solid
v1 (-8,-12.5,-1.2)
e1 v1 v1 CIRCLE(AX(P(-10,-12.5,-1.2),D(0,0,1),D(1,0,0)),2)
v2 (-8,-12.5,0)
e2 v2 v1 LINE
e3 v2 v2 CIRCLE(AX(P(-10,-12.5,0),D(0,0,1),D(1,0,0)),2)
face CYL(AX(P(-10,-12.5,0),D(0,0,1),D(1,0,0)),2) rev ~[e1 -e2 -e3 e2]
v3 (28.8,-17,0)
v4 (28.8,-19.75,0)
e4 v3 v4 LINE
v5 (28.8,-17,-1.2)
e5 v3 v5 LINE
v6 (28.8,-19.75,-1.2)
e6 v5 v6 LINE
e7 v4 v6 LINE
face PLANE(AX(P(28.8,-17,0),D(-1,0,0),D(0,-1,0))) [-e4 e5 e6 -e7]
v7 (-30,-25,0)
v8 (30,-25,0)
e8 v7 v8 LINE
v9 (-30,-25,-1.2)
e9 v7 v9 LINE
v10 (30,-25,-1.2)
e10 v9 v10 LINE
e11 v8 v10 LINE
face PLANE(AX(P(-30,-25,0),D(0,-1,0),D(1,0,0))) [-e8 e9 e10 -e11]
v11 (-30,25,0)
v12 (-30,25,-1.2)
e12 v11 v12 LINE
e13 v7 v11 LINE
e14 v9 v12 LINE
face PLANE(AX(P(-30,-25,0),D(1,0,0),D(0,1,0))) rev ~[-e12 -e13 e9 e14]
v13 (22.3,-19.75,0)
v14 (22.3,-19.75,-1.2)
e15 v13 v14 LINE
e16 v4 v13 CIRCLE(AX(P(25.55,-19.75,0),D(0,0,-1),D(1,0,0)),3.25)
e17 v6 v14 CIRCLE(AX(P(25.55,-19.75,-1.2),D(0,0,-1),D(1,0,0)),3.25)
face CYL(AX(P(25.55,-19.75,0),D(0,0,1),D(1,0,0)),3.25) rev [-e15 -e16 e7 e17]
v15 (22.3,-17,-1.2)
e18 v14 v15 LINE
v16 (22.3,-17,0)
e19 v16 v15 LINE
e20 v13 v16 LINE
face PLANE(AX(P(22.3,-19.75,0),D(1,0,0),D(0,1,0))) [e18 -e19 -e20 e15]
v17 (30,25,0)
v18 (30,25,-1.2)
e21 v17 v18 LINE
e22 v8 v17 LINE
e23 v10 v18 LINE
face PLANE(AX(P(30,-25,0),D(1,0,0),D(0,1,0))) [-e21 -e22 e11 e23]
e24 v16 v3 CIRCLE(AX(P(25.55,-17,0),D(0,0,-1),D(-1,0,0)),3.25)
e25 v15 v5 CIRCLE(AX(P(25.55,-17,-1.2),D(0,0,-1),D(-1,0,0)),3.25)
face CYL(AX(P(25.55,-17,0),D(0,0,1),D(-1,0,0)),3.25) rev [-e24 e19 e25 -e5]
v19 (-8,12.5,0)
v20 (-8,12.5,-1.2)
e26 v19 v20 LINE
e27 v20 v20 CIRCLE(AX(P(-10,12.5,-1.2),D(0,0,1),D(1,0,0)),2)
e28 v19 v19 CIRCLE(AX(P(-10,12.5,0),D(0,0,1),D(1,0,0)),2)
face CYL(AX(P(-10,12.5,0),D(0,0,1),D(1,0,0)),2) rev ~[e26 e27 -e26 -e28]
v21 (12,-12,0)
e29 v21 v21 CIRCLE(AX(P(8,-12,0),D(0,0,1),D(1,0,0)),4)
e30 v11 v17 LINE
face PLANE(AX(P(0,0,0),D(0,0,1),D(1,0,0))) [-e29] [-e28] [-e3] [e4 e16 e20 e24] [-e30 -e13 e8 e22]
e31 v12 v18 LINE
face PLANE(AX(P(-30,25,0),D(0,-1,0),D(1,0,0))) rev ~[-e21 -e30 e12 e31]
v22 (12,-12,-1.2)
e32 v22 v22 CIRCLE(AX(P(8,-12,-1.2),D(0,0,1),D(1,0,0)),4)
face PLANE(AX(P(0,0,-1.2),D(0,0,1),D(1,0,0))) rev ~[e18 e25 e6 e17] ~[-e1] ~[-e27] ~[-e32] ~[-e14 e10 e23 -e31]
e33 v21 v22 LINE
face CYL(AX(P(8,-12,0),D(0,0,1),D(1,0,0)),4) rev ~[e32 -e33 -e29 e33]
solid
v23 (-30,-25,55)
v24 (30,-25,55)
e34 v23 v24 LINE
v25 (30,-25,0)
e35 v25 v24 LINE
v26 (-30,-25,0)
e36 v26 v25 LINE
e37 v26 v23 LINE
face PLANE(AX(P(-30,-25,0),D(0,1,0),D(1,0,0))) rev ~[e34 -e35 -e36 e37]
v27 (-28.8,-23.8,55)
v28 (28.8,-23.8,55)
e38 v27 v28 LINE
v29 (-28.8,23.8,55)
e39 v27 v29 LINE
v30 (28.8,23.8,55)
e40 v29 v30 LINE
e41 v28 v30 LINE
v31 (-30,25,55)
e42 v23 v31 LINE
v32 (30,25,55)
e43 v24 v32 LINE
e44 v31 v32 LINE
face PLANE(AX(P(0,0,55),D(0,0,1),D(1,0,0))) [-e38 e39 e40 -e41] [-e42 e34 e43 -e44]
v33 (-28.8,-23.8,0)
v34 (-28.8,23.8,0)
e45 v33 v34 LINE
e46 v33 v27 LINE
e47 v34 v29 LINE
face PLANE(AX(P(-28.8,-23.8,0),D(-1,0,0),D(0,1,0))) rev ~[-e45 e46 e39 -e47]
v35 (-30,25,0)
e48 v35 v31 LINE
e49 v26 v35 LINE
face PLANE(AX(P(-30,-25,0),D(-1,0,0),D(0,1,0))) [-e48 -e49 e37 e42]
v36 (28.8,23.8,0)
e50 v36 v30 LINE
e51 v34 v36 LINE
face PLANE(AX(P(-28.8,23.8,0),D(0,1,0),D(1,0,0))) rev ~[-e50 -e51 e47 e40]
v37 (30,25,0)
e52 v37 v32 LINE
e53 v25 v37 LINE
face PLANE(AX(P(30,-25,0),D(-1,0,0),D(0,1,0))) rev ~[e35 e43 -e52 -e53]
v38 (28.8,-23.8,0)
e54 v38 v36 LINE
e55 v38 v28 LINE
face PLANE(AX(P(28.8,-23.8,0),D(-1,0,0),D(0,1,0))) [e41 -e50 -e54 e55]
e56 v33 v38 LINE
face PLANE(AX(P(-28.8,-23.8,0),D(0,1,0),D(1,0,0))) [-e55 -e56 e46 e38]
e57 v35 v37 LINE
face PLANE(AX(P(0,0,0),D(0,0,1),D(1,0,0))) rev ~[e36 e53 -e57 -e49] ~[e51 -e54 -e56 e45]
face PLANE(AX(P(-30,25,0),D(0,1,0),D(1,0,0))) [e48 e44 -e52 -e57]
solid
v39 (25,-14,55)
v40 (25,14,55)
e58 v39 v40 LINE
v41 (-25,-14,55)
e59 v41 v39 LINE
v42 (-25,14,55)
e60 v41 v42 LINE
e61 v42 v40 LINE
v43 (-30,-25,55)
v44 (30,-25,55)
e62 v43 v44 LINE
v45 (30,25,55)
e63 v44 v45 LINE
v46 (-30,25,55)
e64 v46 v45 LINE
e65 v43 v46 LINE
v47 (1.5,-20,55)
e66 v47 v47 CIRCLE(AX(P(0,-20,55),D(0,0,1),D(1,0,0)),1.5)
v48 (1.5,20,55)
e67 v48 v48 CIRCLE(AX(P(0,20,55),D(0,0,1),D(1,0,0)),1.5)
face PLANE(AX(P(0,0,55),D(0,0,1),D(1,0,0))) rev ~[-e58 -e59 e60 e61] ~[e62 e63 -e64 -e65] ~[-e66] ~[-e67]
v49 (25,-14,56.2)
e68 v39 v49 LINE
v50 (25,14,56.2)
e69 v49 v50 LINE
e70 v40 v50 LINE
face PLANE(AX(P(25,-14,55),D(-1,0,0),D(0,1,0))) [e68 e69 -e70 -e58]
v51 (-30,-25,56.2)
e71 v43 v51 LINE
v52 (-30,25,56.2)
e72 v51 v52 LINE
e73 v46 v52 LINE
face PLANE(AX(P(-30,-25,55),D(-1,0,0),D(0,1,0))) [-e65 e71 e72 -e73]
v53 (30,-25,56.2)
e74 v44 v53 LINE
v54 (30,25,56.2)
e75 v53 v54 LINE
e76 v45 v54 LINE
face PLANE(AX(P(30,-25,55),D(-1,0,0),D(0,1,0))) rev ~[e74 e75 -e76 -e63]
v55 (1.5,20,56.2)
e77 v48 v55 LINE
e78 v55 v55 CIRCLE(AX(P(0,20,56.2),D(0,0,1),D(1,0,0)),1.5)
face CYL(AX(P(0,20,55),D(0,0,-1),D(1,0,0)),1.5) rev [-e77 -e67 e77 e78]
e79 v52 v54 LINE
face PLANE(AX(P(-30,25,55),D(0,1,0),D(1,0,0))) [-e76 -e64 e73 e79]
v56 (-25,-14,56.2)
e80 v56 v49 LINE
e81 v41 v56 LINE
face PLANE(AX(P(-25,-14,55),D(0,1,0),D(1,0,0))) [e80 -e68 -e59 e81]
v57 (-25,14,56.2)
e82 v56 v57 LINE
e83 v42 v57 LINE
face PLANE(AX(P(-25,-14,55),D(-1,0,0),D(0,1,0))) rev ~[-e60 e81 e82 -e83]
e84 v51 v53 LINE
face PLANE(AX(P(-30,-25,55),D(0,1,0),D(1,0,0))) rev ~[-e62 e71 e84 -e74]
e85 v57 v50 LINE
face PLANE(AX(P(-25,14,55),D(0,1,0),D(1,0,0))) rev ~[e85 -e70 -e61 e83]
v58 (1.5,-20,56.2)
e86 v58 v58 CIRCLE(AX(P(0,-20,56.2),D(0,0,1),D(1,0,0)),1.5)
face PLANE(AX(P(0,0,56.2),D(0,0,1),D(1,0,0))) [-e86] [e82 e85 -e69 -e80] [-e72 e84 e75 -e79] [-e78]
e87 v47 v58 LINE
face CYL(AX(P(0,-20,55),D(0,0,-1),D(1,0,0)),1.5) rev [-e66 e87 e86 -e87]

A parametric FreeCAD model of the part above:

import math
import FreeCAD as App
import Part
import Sketcher
from FreeCAD import Vector
Q = App.Units.Quantity


def add_polygon(sketch, points):
    """Adds a closed chain of lines whose ends are joined by coincident constraints."""
    first, n = sketch.GeometryCount, len(points)
    for a, b in zip(points, points[1:] + points[:1]):
        sketch.addGeometry(Part.LineSegment(App.Vector(*a, 0), App.Vector(*b, 0)), False)
    for i in range(n):
        sketch.addConstraint(Sketcher.Constraint("Coincident", first + i, 2, first + (i + 1) % n, 1))

doc = App.newDocument("Part")
body = doc.addObject("PartDesign::Body", "Body")

sketch1 = body.newObject("Sketcher::SketchObject", "Sketch")
sketch1.AttachmentSupport = (doc.getObject("XY_Plane"), [""])
sketch1.MapMode = "FlatFace"
add_polygon(sketch1, [(-30, 25), (-30, -25), (30, -25), (30, 25)])
add_polygon(sketch1, [(29, -24), (-29, -24), (-29, 24), (29, 24)])
sketch1.addConstraint(Sketcher.Constraint("Vertical", 0))
sketch1.addConstraint(Sketcher.Constraint("Horizontal", 1))
sketch1.addConstraint(Sketcher.Constraint("Vertical", 2))
sketch1.addConstraint(Sketcher.Constraint("Horizontal", 3))
sketch1.addConstraint(Sketcher.Constraint("Horizontal", 4))
sketch1.addConstraint(Sketcher.Constraint("Vertical", 5))
sketch1.addConstraint(Sketcher.Constraint("Horizontal", 6))
sketch1.addConstraint(Sketcher.Constraint("Vertical", 7))
sketch1.addConstraint(Sketcher.Constraint("Symmetric", 0, 2, 2, 2, -1, 1))
sketch1.addConstraint(Sketcher.Constraint("Symmetric", 4, 2, 6, 2, -1, 1))
sketch1.addConstraint(Sketcher.Constraint("DistanceX", 1, 1, 1, 2, Q("60 mm")))
sketch1.addConstraint(Sketcher.Constraint("DistanceY", 0, 2, 0, 1, Q("50 mm")))
sketch1.addConstraint(Sketcher.Constraint("DistanceX", 4, 2, 4, 1, Q("57.6 mm")))
sketch1.addConstraint(Sketcher.Constraint("DistanceY", 5, 1, 5, 2, Q("47.6 mm")))
pad1 = body.newObject("PartDesign::Pad", "Pad")
pad1.Profile = sketch1
pad1.Length = 55
body2 = doc.addObject("PartDesign::Body", "Body001")

sketch2 = body2.newObject("Sketcher::SketchObject", "Sketch001")
sketch2.AttachmentSupport = (doc.getObject("XY_Plane001"), [""])
sketch2.MapMode = "FlatFace"
sketch2.AttachmentOffset = App.Placement(Vector(0, 0, 55), App.Rotation())
add_polygon(sketch2, [(-30, 25), (-30, -25), (30, -25), (30, 25)])
sketch2.addGeometry(Part.Circle(Vector(0, -20, 0), Vector(0, 0, 1), 1.5), False)
add_polygon(sketch2, [(25, -14), (-25, -14), (-25, 14), (25, 14)])
sketch2.addGeometry(Part.Circle(Vector(0, 20, 0), Vector(0, 0, 1), 1.5), False)
sketch2.addConstraint(Sketcher.Constraint("Vertical", 0))
sketch2.addConstraint(Sketcher.Constraint("Horizontal", 1))
sketch2.addConstraint(Sketcher.Constraint("Vertical", 2))
sketch2.addConstraint(Sketcher.Constraint("Horizontal", 3))
sketch2.addConstraint(Sketcher.Constraint("Horizontal", 5))
sketch2.addConstraint(Sketcher.Constraint("Vertical", 6))
sketch2.addConstraint(Sketcher.Constraint("Horizontal", 7))
sketch2.addConstraint(Sketcher.Constraint("Vertical", 8))
sketch2.addConstraint(Sketcher.Constraint("Equal", 4, 9))
sketch2.addConstraint(Sketcher.Constraint("Symmetric", 4, 3, 9, 3, -1, 1))
sketch2.addConstraint(Sketcher.Constraint("Symmetric", 0, 2, 2, 2, -1, 1))
sketch2.addConstraint(Sketcher.Constraint("Symmetric", 5, 2, 7, 2, -1, 1))
sketch2.addConstraint(Sketcher.Constraint("PointOnObject", 4, 3, -2))
sketch2.addConstraint(Sketcher.Constraint("Equal", 7, 0))
sketch2.addConstraint(Sketcher.Constraint("Diameter", 4, Q("3 mm")))
sketch2.addConstraint(Sketcher.Constraint("DistanceX", 1, 1, 1, 2, Q("60 mm")))
sketch2.addConstraint(Sketcher.Constraint("DistanceX", 5, 2, 5, 1, Q("50 mm")))
sketch2.addConstraint(Sketcher.Constraint("DistanceY", 6, 1, 6, 2, Q("28 mm")))
sketch2.addConstraint(Sketcher.Constraint("DistanceY", 4, 3, -1, 1, Q("20 mm")))
pad2 = body2.newObject("PartDesign::Pad", "Pad001")
pad2.Profile = sketch2
pad2.Length = 1.2
body3 = doc.addObject("PartDesign::Body", "Body002")

sketch3 = body3.newObject("Sketcher::SketchObject", "Sketch002")
sketch3.AttachmentSupport = (doc.getObject("XY_Plane002"), [""])
sketch3.MapMode = "FlatFace"
add_polygon(sketch3, [(-30, 25), (-30, -25), (30, -25), (30, 25)])
sketch3.addGeometry(Part.Circle(Vector(-10, -12.5, 0), Vector(0, 0, 1), 2), False)
sketch3.addGeometry(Part.Circle(Vector(8, -12, 0), Vector(0, 0, 1), 4), False)
sketch3.addGeometry(Part.ArcOfCircle(Part.Circle(Vector(25.6, -17, 0), Vector(0, 0, 1), 3.2), math.radians(0), math.radians(180)), False)
sketch3.addGeometry(Part.LineSegment(Vector(28.8, -17, 0), Vector(28.8, -19.8, 0)), False)
sketch3.addGeometry(Part.ArcOfCircle(Part.Circle(Vector(25.6, -19.8, 0), Vector(0, 0, 1), 3.2), math.radians(180), math.radians(360)), False)
sketch3.addGeometry(Part.LineSegment(Vector(22.3, -19.8, 0), Vector(22.3, -17, 0)), False)
sketch3.addGeometry(Part.Circle(Vector(-10, 12.5, 0), Vector(0, 0, 1), 2), False)
sketch3.addConstraint(Sketcher.Constraint("Tangent", 6, 1, 7, 1))
sketch3.addConstraint(Sketcher.Constraint("Tangent", 7, 2, 8, 2))
sketch3.addConstraint(Sketcher.Constraint("Tangent", 8, 1, 9, 1))
sketch3.addConstraint(Sketcher.Constraint("Tangent", 9, 2, 6, 2))
sketch3.addConstraint(Sketcher.Constraint("Vertical", 0))
sketch3.addConstraint(Sketcher.Constraint("Horizontal", 1))
sketch3.addConstraint(Sketcher.Constraint("Vertical", 2))
sketch3.addConstraint(Sketcher.Constraint("Horizontal", 3))
sketch3.addConstraint(Sketcher.Constraint("Vertical", 7))
sketch3.addConstraint(Sketcher.Constraint("Vertical", 9))
sketch3.addConstraint(Sketcher.Constraint("Equal", 4, 10))
sketch3.addConstraint(Sketcher.Constraint("Symmetric", 0, 2, 2, 2, -1, 1))
sketch3.addConstraint(Sketcher.Constraint("Symmetric", 4, 3, 10, 3, -1))
sketch3.addConstraint(Sketcher.Constraint("Diameter", 4, Q("4 mm")))
sketch3.addConstraint(Sketcher.Constraint("Diameter", 5, Q("8 mm")))
sketch3.addConstraint(Sketcher.Constraint("DistanceX", 1, 1, 1, 2, Q("60 mm")))
sketch3.addConstraint(Sketcher.Constraint("DistanceY", 0, 2, 0, 1, Q("50 mm")))
sketch3.addConstraint(Sketcher.Constraint("Radius", 6, Q("3.25 mm")))
sketch3.addConstraint(Sketcher.Constraint("DistanceX", 4, 3, -1, 1, Q("10 mm")))
sketch3.addConstraint(Sketcher.Constraint("DistanceX", -1, 1, 5, 3, Q("8 mm")))
sketch3.addConstraint(Sketcher.Constraint("DistanceY", 5, 3, -1, 1, Q("12 mm")))
sketch3.addConstraint(Sketcher.Constraint("DistanceY", 6, 3, -1, 1, Q("17 mm")))
sketch3.addConstraint(Sketcher.Constraint("DistanceY", 4, 3, 10, 3, Q("25 mm")))
sketch3.addConstraint(Sketcher.Constraint("DistanceY", 7, 2, 7, 1, Q("2.75 mm")))
sketch3.addConstraint(Sketcher.Constraint("DistanceX", -1, 1, 6, 1, Q("28.8 mm")))
pad3 = body3.newObject("PartDesign::Pad", "Pad002")
pad3.Profile = sketch3
pad3.Length = 1.2
pad3.Reversed = True

doc.recompute()
